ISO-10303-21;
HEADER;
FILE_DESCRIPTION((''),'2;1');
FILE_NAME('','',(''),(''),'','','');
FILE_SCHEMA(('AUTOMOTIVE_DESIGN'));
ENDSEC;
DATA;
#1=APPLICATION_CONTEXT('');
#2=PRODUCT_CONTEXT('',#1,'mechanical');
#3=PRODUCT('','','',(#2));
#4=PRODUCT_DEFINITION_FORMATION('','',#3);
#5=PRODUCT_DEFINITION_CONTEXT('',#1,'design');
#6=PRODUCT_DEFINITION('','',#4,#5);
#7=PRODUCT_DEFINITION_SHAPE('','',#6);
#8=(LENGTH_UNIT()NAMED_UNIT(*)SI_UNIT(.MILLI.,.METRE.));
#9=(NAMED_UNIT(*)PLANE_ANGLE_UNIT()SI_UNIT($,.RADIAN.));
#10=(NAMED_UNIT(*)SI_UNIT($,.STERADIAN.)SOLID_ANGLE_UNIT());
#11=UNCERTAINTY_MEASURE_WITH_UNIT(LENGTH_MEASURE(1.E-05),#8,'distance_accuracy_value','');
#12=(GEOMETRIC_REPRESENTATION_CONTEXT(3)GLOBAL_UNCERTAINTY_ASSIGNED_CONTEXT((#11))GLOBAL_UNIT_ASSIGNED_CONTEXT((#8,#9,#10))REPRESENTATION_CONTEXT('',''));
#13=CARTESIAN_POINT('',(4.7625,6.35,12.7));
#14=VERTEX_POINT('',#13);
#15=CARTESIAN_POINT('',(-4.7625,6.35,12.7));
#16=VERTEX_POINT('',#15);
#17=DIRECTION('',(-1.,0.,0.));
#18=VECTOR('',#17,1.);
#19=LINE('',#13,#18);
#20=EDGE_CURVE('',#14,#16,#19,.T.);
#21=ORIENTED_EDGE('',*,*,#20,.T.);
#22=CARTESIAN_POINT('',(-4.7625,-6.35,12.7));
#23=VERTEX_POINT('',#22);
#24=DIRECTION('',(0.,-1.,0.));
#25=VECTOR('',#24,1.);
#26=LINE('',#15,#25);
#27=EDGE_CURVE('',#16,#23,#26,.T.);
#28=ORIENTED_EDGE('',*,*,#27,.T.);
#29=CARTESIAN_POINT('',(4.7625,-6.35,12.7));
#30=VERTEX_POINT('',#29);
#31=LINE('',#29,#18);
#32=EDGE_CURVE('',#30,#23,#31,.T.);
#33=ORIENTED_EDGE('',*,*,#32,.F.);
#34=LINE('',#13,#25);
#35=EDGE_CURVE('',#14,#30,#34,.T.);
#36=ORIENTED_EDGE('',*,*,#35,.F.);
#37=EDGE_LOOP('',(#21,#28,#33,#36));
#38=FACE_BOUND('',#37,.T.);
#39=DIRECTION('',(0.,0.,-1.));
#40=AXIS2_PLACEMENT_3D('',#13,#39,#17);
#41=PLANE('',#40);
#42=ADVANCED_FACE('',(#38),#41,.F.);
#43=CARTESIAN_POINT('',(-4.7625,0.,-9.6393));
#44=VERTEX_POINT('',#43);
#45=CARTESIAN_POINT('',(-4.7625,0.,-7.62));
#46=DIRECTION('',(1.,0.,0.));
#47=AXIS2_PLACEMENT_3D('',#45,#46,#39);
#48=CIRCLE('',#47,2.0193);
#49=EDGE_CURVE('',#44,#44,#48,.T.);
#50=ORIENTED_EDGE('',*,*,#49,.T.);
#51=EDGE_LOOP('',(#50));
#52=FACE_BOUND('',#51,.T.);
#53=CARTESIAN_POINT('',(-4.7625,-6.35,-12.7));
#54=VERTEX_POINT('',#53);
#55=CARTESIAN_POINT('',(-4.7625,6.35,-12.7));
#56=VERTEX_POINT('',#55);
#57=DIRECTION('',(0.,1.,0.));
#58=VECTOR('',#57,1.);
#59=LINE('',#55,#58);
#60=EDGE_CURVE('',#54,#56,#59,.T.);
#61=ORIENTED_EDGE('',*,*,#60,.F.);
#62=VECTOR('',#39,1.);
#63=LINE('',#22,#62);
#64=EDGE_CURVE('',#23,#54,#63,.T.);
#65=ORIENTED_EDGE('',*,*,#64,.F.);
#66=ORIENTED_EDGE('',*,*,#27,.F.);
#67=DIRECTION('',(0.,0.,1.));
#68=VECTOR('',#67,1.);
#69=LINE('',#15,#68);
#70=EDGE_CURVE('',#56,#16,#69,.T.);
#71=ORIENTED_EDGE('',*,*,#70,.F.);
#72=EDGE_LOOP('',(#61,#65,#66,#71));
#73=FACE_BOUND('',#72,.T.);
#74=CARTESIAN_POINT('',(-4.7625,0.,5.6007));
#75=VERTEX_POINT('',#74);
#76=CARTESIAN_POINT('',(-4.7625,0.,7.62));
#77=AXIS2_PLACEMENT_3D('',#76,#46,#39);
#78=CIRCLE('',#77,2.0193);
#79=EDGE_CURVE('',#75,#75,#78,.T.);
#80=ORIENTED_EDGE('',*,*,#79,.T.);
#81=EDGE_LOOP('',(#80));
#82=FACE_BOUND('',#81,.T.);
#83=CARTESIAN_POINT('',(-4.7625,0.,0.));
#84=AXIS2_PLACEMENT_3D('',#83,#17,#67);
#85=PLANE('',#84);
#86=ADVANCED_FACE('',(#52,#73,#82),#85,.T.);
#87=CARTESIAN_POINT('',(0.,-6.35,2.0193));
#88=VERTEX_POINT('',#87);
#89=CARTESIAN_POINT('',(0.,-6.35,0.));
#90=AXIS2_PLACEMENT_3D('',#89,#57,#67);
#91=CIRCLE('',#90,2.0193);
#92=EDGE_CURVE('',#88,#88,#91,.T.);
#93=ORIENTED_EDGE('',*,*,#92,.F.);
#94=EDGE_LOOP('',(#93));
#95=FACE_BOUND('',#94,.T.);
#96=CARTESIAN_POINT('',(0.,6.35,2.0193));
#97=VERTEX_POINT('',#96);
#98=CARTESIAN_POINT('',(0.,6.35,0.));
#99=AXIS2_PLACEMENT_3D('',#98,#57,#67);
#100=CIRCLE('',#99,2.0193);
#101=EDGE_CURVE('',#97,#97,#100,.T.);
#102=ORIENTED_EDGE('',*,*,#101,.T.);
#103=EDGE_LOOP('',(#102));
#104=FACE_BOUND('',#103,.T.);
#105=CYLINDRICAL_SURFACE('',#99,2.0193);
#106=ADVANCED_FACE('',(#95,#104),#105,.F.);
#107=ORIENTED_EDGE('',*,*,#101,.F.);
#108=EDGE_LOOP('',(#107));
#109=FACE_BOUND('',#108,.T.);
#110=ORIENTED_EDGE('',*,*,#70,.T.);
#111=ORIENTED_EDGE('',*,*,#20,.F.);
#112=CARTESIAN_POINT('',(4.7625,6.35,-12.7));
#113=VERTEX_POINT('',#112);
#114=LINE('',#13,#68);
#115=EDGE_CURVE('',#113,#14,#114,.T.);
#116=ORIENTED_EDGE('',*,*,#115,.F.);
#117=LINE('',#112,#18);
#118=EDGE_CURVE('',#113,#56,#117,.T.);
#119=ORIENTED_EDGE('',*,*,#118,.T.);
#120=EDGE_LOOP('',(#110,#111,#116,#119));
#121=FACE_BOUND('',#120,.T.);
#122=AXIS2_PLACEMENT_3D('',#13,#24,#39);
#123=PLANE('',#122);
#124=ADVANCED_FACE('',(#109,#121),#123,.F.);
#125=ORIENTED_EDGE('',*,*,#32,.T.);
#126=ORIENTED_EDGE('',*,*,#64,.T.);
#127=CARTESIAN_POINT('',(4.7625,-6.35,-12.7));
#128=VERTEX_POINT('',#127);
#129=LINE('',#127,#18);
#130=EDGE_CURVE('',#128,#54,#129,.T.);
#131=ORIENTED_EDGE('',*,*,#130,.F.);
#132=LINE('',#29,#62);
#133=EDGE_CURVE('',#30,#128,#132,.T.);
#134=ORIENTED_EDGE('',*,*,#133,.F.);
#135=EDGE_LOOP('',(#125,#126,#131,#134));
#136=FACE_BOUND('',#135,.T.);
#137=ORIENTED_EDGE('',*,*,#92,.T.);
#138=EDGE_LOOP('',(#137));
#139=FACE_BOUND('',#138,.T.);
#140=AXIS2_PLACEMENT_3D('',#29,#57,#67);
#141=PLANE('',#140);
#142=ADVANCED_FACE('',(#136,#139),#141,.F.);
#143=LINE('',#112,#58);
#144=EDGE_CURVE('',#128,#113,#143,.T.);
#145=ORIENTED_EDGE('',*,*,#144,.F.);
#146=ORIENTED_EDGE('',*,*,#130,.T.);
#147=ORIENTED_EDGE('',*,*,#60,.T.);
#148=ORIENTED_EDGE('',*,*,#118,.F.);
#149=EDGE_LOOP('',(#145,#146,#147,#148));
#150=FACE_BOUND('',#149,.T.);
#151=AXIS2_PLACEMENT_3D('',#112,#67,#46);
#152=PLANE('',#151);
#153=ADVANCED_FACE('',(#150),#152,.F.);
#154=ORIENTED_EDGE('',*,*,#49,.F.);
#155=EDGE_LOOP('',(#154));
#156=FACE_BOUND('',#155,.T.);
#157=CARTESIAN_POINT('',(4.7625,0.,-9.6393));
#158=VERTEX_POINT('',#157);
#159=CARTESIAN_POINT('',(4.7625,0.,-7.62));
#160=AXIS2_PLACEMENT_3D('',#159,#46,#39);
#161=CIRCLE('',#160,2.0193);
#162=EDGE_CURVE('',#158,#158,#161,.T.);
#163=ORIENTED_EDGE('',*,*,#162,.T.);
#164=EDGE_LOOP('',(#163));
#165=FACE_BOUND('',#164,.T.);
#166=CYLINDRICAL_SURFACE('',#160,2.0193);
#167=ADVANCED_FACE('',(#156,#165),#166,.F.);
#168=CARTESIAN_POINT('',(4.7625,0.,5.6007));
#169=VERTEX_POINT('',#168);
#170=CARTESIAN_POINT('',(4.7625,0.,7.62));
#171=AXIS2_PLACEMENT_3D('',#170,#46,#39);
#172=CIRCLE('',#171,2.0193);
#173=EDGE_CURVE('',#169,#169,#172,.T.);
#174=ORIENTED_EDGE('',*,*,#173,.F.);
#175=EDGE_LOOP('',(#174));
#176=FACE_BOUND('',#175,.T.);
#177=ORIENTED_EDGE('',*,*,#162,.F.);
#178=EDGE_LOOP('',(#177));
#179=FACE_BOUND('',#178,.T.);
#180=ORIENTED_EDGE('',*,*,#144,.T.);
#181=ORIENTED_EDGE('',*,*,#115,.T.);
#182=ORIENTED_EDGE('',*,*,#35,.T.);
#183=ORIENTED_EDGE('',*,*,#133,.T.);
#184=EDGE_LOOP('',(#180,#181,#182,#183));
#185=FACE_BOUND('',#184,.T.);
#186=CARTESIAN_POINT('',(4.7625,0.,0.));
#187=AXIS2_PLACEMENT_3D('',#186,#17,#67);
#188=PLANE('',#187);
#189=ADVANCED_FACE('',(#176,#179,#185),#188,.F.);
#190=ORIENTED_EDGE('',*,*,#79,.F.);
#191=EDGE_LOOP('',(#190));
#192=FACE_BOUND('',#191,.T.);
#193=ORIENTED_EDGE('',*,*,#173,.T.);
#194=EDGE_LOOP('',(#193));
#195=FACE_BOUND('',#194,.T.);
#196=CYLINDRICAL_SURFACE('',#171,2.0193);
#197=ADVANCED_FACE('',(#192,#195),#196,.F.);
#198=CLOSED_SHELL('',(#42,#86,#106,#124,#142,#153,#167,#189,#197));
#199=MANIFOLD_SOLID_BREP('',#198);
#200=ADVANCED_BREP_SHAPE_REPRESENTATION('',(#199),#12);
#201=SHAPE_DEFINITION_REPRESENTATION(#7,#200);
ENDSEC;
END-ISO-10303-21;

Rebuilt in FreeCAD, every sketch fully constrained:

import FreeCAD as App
import Part
import Sketcher
from FreeCAD import Vector
Q = App.Units.Quantity

doc = App.newDocument("Part")
params = doc.addObject("Spreadsheet::Sheet", "Params")
for row, (alias, value) in enumerate([
    ("sketch1_height", "1 in"),
    ("sketch1_width", "0.5 in"),
    ("pad1_length", "0.375 in"),
    ("sketch2_diameter", "0.159 in"),
    ("hole_diameter", "0.159 in"),
    ("sketch3_diameter", "0.159 in"),
    ("hole2_diameter", "0.159 in"),
], start=1):
    params.set(f"A{row}", alias)
    params.set(f"B{row}", "=" + value)
    params.setAlias(f"B{row}", alias)

body = doc.addObject("PartDesign::Body", "Body")

# Sketch on YZ plane
sketch1 = body.newObject("Sketcher::SketchObject", "Sketch")
sketch1.AttachmentSupport = (doc.getObject("YZ_Plane"), [""])
sketch1.MapMode = "FlatFace"
sketch1.addGeometry(Part.LineSegment(Vector(6, 13, 0), Vector(-6, 13, 0)), False)
sketch1.addGeometry(Part.LineSegment(Vector(-6, 13, 0), Vector(-6, -13, 0)), False)
sketch1.addGeometry(Part.LineSegment(Vector(-6, -13, 0), Vector(6, -13, 0)), False)
sketch1.addGeometry(Part.LineSegment(Vector(6, -13, 0), Vector(6, 13, 0)), False)
sketch1.addConstraint(Sketcher.Constraint("Coincident", 0, 2, 1, 1))
sketch1.addConstraint(Sketcher.Constraint("Coincident", 1, 2, 2, 1))
sketch1.addConstraint(Sketcher.Constraint("Coincident", 2, 2, 3, 1))
sketch1.addConstraint(Sketcher.Constraint("Coincident", 3, 2, 0, 1))
sketch1.addConstraint(Sketcher.Constraint("Horizontal", 0))
sketch1.addConstraint(Sketcher.Constraint("Vertical", 1))
sketch1.addConstraint(Sketcher.Constraint("Horizontal", 2))
sketch1.addConstraint(Sketcher.Constraint("Vertical", 3))
sketch1.addConstraint(Sketcher.Constraint("Symmetric", 0, 2, 2, 2, -1, 1))
sketch1.addConstraint(Sketcher.Constraint("DistanceY", 1, 2, 1, 1, Q("1 in")))
sketch1.addConstraint(Sketcher.Constraint("DistanceX", 0, 2, 0, 1, Q("0.5 in")))
sketch1.setExpression("Constraints[9]", "Params.sketch1_height")
sketch1.setExpression("Constraints[10]", "Params.sketch1_width")
pad1 = body.newObject("PartDesign::Pad", "Pad")
pad1.Profile = sketch1
pad1.setExpression("Length", "Params.pad1_length")
pad1.Midplane = True

# Sketch on XZ plane
sketch2 = body.newObject("Sketcher::SketchObject", "Sketch001")
sketch2.AttachmentSupport = (doc.getObject("XZ_Plane"), [""])
sketch2.MapMode = "FlatFace"
sketch2.AttachmentOffset = App.Placement(Vector(0, 0, -0.25 * 25.4), App.Rotation())
sketch2.addGeometry(Part.Circle(Vector(0, 0, 0), Vector(0, 0, 1), 2), False)
sketch2.addConstraint(Sketcher.Constraint("Coincident", 0, 3, -1, 1))
sketch2.addConstraint(Sketcher.Constraint("Diameter", 0, Q("0.159 in")))
sketch2.setExpression("Constraints[1]", "Params.sketch2_diameter")
doc.recompute()
hole = body.newObject("PartDesign::Hole", "Hole")
hole.Profile = sketch2
hole.ThreadType = "None"
hole.setExpression("Diameter", "Params.hole_diameter")
hole.DepthType = "ThroughAll"
hole.Reversed = True

# Sketch on YZ plane
sketch3 = body.newObject("Sketcher::SketchObject", "Sketch002")
sketch3.AttachmentSupport = (doc.getObject("YZ_Plane"), [""])
sketch3.MapMode = "FlatFace"
sketch3.AttachmentOffset = App.Placement(Vector(0, 0, 0.1875 * 25.4), App.Rotation())
sketch3.addGeometry(Part.Circle(Vector(0, 7.6, 0), Vector(0, 0, 1), 2), False)
sketch3.addGeometry(Part.Circle(Vector(0, -7.6, 0), Vector(0, 0, 1), 2), False)
sketch3.addConstraint(Sketcher.Constraint("Equal", 0, 1))
sketch3.addConstraint(Sketcher.Constraint("Symmetric", 0, 3, 1, 3, -1, 1))
sketch3.addConstraint(Sketcher.Constraint("PointOnObject", 0, 3, -2))
sketch3.addConstraint(Sketcher.Constraint("Diameter", 0, Q("0.159 in")))
sketch3.addConstraint(Sketcher.Constraint("DistanceY", -1, 1, 0, 3, Q("0.3 in")))
sketch3.setExpression("Constraints[3]", "Params.sketch3_diameter")
doc.recompute()
hole2 = body.newObject("PartDesign::Hole", "Hole001")
hole2.Profile = sketch3
hole2.ThreadType = "None"
hole2.setExpression("Diameter", "Params.hole2_diameter")
hole2.DepthType = "ThroughAll"

doc.recompute()
